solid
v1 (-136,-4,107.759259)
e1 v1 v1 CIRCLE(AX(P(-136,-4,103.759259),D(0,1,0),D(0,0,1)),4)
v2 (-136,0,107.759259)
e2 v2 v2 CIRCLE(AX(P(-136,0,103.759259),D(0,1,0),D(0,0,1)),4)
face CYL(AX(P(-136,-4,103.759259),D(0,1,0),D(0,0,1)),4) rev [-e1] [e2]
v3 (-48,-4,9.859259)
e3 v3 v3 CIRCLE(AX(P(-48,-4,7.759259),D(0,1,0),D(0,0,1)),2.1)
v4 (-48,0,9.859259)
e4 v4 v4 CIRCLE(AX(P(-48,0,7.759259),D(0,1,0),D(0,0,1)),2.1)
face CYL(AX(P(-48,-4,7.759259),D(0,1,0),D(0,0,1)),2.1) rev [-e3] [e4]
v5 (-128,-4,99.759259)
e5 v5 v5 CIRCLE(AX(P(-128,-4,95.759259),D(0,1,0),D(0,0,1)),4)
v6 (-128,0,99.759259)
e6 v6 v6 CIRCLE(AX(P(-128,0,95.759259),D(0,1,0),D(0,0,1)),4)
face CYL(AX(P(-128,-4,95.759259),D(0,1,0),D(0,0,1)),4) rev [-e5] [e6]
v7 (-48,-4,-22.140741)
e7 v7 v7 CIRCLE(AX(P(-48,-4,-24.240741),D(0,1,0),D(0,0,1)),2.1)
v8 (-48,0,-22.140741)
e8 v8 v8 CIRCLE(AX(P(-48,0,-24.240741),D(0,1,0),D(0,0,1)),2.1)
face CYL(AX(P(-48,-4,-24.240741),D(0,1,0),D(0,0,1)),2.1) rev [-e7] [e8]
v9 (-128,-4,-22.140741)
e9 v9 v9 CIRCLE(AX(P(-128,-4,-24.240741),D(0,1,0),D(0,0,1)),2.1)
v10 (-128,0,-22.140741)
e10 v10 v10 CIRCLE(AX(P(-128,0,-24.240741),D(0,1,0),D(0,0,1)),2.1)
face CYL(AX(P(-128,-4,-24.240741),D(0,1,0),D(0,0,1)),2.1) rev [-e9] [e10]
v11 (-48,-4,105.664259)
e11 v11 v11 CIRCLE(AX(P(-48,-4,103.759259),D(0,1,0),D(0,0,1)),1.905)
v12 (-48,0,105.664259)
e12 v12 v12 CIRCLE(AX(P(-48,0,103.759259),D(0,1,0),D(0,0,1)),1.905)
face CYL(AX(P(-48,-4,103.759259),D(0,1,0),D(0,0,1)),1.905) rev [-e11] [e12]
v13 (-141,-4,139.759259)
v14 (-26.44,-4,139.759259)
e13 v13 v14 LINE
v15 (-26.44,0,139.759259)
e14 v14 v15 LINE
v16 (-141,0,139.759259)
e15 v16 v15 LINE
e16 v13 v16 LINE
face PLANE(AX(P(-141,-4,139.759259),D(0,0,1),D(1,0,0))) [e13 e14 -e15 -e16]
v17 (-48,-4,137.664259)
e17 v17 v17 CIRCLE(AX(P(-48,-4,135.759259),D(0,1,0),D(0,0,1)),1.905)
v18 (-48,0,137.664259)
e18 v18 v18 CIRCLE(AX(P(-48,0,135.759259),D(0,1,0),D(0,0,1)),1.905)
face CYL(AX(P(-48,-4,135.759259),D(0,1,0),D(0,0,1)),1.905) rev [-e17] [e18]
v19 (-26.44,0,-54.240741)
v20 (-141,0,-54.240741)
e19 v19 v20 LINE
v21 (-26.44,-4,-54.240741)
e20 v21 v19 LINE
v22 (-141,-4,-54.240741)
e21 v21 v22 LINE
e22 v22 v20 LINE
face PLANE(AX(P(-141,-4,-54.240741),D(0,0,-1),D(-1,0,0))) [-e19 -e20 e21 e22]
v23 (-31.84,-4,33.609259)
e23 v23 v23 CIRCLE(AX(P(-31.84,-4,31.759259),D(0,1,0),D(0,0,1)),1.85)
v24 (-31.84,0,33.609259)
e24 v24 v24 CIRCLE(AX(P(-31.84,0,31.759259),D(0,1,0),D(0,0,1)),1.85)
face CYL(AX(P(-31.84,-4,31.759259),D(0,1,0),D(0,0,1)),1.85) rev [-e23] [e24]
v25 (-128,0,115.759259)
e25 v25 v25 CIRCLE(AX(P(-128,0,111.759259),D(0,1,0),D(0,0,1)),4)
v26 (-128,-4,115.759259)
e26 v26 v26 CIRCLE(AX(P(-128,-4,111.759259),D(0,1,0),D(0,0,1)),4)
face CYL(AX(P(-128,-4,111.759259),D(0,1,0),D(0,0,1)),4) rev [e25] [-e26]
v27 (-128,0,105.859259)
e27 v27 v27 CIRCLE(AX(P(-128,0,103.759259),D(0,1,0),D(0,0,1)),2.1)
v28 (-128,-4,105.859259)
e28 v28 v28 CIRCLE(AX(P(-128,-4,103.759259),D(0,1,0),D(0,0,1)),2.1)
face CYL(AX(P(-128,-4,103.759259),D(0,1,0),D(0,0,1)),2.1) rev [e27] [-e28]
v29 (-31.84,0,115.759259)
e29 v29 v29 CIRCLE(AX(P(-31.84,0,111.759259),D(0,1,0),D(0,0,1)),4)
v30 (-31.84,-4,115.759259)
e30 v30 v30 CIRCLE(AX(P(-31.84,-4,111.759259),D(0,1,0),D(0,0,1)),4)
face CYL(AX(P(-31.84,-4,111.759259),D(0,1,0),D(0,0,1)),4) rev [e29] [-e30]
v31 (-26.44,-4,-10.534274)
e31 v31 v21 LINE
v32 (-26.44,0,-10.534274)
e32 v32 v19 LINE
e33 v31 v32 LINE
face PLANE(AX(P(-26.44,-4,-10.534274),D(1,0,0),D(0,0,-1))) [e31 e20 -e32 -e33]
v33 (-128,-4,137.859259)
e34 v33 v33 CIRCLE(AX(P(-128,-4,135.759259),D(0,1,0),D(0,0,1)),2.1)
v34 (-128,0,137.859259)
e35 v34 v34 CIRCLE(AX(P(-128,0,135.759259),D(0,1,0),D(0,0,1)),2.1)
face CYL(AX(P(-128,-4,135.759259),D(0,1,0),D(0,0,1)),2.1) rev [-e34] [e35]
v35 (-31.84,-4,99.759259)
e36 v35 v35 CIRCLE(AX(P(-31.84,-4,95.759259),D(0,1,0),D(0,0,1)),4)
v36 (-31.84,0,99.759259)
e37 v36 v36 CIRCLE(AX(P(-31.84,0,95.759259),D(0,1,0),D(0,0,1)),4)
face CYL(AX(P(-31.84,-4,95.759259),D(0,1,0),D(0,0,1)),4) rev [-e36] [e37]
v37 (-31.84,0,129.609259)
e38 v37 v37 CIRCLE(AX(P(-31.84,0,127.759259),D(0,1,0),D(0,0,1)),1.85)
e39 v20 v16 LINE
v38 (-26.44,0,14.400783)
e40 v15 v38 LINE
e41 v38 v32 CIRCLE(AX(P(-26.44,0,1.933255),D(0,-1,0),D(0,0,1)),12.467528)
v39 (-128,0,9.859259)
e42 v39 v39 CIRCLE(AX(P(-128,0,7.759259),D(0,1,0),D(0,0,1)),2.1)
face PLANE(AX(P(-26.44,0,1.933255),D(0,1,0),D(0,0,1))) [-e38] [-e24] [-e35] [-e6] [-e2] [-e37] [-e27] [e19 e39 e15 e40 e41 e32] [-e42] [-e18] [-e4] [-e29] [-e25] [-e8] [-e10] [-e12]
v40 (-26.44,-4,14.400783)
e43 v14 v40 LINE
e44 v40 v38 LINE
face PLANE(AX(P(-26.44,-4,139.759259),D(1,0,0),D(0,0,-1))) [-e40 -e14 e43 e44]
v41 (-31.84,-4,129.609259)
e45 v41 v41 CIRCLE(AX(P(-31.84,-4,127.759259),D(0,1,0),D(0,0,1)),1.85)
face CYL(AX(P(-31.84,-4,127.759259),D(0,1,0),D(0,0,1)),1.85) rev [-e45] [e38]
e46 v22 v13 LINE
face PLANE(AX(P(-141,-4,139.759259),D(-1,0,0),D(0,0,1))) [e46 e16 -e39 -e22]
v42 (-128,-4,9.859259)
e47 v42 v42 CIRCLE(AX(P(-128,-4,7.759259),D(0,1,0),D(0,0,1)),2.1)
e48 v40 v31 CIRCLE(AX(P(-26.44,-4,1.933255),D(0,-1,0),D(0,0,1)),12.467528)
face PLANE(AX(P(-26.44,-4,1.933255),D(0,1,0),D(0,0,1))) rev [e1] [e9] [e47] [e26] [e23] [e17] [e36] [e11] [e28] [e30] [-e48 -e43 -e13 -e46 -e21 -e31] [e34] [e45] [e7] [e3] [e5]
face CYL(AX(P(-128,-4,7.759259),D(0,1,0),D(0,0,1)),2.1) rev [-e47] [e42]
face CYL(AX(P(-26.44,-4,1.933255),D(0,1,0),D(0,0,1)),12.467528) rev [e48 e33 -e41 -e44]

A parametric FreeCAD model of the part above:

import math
import FreeCAD as App
import Part
import Sketcher

doc = App.newDocument("Part")
body = doc.addObject("PartDesign::Body", "Body")

# Sketch on XZ plane
sketch1 = doc.addObject("Sketcher::SketchObject", "Sketch")
body.addObject(sketch1)
sketch1.AttachmentSupport = (doc.XZ_Plane, [""])
sketch1.MapMode = "FlatFace"
sketch1.addGeometry([
    Part.LineSegment(App.Vector(-141, 139.759259, 0), App.Vector(-26.44, 139.759259, 0)),  # 0
    Part.LineSegment(App.Vector(-26.44, 139.759259, 0), App.Vector(-26.44, 14.400783, 0)),  # 1
    Part.ArcOfCircle(Part.Circle(App.Vector(-26.44, 1.933255, 0), App.Vector(0, 0, 1), 12.467528), math.radians(90), math.radians(270)),  # 2
    Part.LineSegment(App.Vector(-26.44, -10.534274, 0), App.Vector(-26.44, -54.240741, 0)),  # 3
    Part.LineSegment(App.Vector(-26.44, -54.240741, 0), App.Vector(-141, -54.240741, 0)),  # 4
    Part.LineSegment(App.Vector(-141, -54.240741, 0), App.Vector(-141, 139.759259, 0)),  # 5
    Part.Circle(App.Vector(-128, 135.759259, 0), App.Vector(0, 0, 1), 2.1),  # 6
    Part.Circle(App.Vector(-128, 111.759259, 0), App.Vector(0, 0, 1), 4),  # 7
    Part.Circle(App.Vector(-136, 103.759259, 0), App.Vector(0, 0, 1), 4),  # 8
    Part.Circle(App.Vector(-128, 103.759259, 0), App.Vector(0, 0, 1), 2.1),  # 9
    Part.Circle(App.Vector(-128, 95.759259, 0), App.Vector(0, 0, 1), 4),  # 10
    Part.Circle(App.Vector(-48, 135.759259, 0), App.Vector(0, 0, 1), 1.905),  # 11
    Part.Circle(App.Vector(-31.84, 127.759259, 0), App.Vector(0, 0, 1), 1.85),  # 12
    Part.Circle(App.Vector(-48, 103.759259, 0), App.Vector(0, 0, 1), 1.905),  # 13
    Part.Circle(App.Vector(-31.84, 111.759259, 0), App.Vector(0, 0, 1), 4),  # 14
    Part.Circle(App.Vector(-31.84, 95.759259, 0), App.Vector(0, 0, 1), 4),  # 15
    Part.Circle(App.Vector(-128, 7.759259, 0), App.Vector(0, 0, 1), 2.1),  # 16
    Part.Circle(App.Vector(-128, -24.240741, 0), App.Vector(0, 0, 1), 2.1),  # 17
    Part.Circle(App.Vector(-31.84, 31.759259, 0), App.Vector(0, 0, 1), 1.85),  # 18
    Part.Circle(App.Vector(-48, 7.759259, 0), App.Vector(0, 0, 1), 2.1),  # 19
    Part.Circle(App.Vector(-48, -24.240741, 0), App.Vector(0, 0, 1), 2.1),  # 20
], False)
sketch1.addConstraint([
    Sketcher.Constraint("Coincident", 0, 2, 1, 1),
    Sketcher.Constraint("Coincident", 1, 2, 2, 1),
    Sketcher.Constraint("Coincident", 2, 2, 3, 1),
    Sketcher.Constraint("Coincident", 3, 2, 4, 1),
    Sketcher.Constraint("Coincident", 4, 2, 5, 1),
    Sketcher.Constraint("Coincident", 5, 2, 0, 1),
    Sketcher.Constraint("Horizontal", 0),
    Sketcher.Constraint("Vertical", 1),
    Sketcher.Constraint("Vertical", 3),
    Sketcher.Constraint("Horizontal", 4),
    Sketcher.Constraint("Vertical", 5),
    Sketcher.Constraint("Equal", 7, 8),
    Sketcher.Constraint("Equal", 6, 9),
    Sketcher.Constraint("Equal", 8, 10),
    Sketcher.Constraint("Equal", 11, 13),
    Sketcher.Constraint("Equal", 10, 14),
    Sketcher.Constraint("Equal", 14, 15),
    Sketcher.Constraint("Equal", 9, 16),
    Sketcher.Constraint("Equal", 16, 17),
    Sketcher.Constraint("Equal", 12, 18),
    Sketcher.Constraint("Equal", 17, 19),
    Sketcher.Constraint("Equal", 19, 20),
    Sketcher.Constraint("Horizontal", 8, 3, 9, 3),
    Sketcher.Constraint("Horizontal", 6, 3, 11, 3),
    Sketcher.Constraint("Horizontal", 9, 3, 13, 3),
    Sketcher.Constraint("Horizontal", 7, 3, 14, 3),
    Sketcher.Constraint("Horizontal", 10, 3, 15, 3),
    Sketcher.Constraint("Horizontal", 16, 3, 19, 3),
    Sketcher.Constraint("Horizontal", 17, 3, 20, 3),
    Sketcher.Constraint("Vertical", 6, 3, 7, 3),
    Sketcher.Constraint("Vertical", 7, 3, 9, 3),
    Sketcher.Constraint("Vertical", 9, 3, 10, 3),
    Sketcher.Constraint("Vertical", 11, 3, 13, 3),
    Sketcher.Constraint("Vertical", 12, 3, 14, 3),
    Sketcher.Constraint("Vertical", 14, 3, 15, 3),
    Sketcher.Constraint("Vertical", 10, 3, 16, 3),
    Sketcher.Constraint("Vertical", 16, 3, 17, 3),
    Sketcher.Constraint("Vertical", 15, 3, 18, 3),
    Sketcher.Constraint("Vertical", 13, 3, 19, 3),
    Sketcher.Constraint("Vertical", 19, 3, 20, 3),
    Sketcher.Constraint("Vertical", 2, 3, 0, 2),
    Sketcher.Constraint("Vertical", 1, 2, 2, 2),
    Sketcher.Constraint("Diameter", 7, 8.0),
    Sketcher.Constraint("Diameter", 6, 4.2),
    Sketcher.Constraint("Diameter", 12, 3.7),
    Sketcher.Constraint("Diameter", 11, 3.81),
    Sketcher.Constraint("DistanceY", 5, 1, 5, 2, 194.0),
    Sketcher.Constraint("DistanceX", 6, 3, -1, 1, 128.0),
    Sketcher.Constraint("DistanceX", 8, 3, -1, 1, 136.0),
    Sketcher.Constraint("DistanceX", 11, 3, -1, 1, 48.0),
    Sketcher.Constraint("DistanceX", 4, 2, -1, 1, 141.0),
    Sketcher.Constraint("DistanceY", 7, 3, 6, 3, 24.0),
    Sketcher.Constraint("DistanceY", 8, 3, 7, 3, 8.0),
    Sketcher.Constraint("DistanceY", 10, 3, 9, 3, 8.0),
    Sketcher.Constraint("DistanceY", 12, 3, 11, 3, 8.0),
    Sketcher.Constraint("DistanceY", 16, 3, 10, 3, 88.0),
    Sketcher.Constraint("DistanceY", 17, 3, 16, 3, 32.0),
    Sketcher.Constraint("DistanceY", 18, 3, 15, 3, 64.0),
    Sketcher.Constraint("DistanceY", 12, 3, 0, 2, 12.0),
    Sketcher.Constraint("DistanceX", 0, 1, 0, 2, 114.56),
    Sketcher.Constraint("DistanceX", 15, 3, 2, 3, 5.4),
    Sketcher.Constraint("Radius", 2, 12.467528),
    Sketcher.Constraint("DistanceY", 1, 2, 1, 1, 125.358476),
    Sketcher.Constraint("DistanceY", -1, 1, 6, 3, 135.759259),
])
pad1 = doc.addObject("PartDesign::Pad", "Pad")
body.addObject(pad1)
pad1.Profile = sketch1
pad1.Length = 4

doc.recompute()
